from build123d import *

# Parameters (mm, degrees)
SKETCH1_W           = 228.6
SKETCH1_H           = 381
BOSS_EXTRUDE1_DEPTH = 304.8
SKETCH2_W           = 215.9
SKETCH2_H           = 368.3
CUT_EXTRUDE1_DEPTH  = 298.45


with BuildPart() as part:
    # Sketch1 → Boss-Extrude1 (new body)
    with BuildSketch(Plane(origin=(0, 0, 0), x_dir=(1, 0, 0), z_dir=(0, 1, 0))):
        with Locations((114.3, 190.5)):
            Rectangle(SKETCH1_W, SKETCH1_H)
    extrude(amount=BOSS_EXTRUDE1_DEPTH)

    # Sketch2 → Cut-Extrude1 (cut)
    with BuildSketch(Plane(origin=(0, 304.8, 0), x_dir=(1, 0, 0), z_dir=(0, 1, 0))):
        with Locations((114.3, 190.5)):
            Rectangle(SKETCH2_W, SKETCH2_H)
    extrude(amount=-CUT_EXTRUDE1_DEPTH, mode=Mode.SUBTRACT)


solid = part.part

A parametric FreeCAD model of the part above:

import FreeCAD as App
import Part
import Sketcher
from FreeCAD import Vector
Q = App.Units.Quantity


def add_polygon(sketch, points):
    """Adds a closed chain of lines whose ends are joined by coincident constraints."""
    first, n = sketch.GeometryCount, len(points)
    for a, b in zip(points, points[1:] + points[:1]):
        sketch.addGeometry(Part.LineSegment(App.Vector(*a, 0), App.Vector(*b, 0)), False)
    for i in range(n):
        sketch.addConstraint(Sketcher.Constraint("Coincident", first + i, 2, first + (i + 1) % n, 1))

doc = App.newDocument("Part")
body = doc.addObject("PartDesign::Body", "Body")

# Sketch on XZ plane
sketch1 = body.newObject("Sketcher::SketchObject", "Sketch")
sketch1.AttachmentSupport = (doc.getObject("XZ_Plane"), [""])
sketch1.MapMode = "FlatFace"
add_polygon(sketch1, [(0, -381), (0, 0), (229, 0), (229, -381)])  # lines 0-3
sketch1.addConstraint(Sketcher.Constraint("Vertical", 0))
sketch1.addConstraint(Sketcher.Constraint("Horizontal", 1))
sketch1.addConstraint(Sketcher.Constraint("Vertical", 2))
sketch1.addConstraint(Sketcher.Constraint("Horizontal", 3))
sketch1.addConstraint(Sketcher.Constraint("Coincident", 0, 2, -1, 1))
sketch1.addConstraint(Sketcher.Constraint("DistanceX", 1, 1, 1, 2, Q("9 in")))
sketch1.addConstraint(Sketcher.Constraint("DistanceY", 0, 1, 0, 2, Q("15 in")))
pad1 = body.newObject("PartDesign::Pad", "Pad")
pad1.Profile = sketch1
pad1.Length = Q("12 in")
pad1.Reversed = True

# Sketch on XZ plane
sketch2 = body.newObject("Sketcher::SketchObject", "Sketch001")
sketch2.AttachmentSupport = (doc.getObject("XZ_Plane"), [""])
sketch2.MapMode = "FlatFace"
sketch2.AttachmentOffset = App.Placement(Vector(0, 0, -12 * 25.4), App.Rotation())
add_polygon(sketch2, [(6, -375), (6, -6), (222, -6), (222, -375)])  # lines 0-3
sketch2.addConstraint(Sketcher.Constraint("Vertical", 0))
sketch2.addConstraint(Sketcher.Constraint("Horizontal", 1))
sketch2.addConstraint(Sketcher.Constraint("Vertical", 2))
sketch2.addConstraint(Sketcher.Constraint("Horizontal", 3))
sketch2.addConstraint(Sketcher.Constraint("DistanceX", 1, 1, 1, 2, Q("8.5 in")))
sketch2.addConstraint(Sketcher.Constraint("DistanceY", 0, 1, 0, 2, Q("14.5 in")))
sketch2.addConstraint(Sketcher.Constraint("DistanceX", -1, 1, 0, 2, Q("0.25 in")))
sketch2.addConstraint(Sketcher.Constraint("DistanceY", 0, 2, -1, 1, Q("0.25 in")))
pocket1 = body.newObject("PartDesign::Pocket", "Pocket")
pocket1.Profile = sketch2
pocket1.Length = Q("11.75 in")
pocket1.Reversed = True

doc.recompute()
